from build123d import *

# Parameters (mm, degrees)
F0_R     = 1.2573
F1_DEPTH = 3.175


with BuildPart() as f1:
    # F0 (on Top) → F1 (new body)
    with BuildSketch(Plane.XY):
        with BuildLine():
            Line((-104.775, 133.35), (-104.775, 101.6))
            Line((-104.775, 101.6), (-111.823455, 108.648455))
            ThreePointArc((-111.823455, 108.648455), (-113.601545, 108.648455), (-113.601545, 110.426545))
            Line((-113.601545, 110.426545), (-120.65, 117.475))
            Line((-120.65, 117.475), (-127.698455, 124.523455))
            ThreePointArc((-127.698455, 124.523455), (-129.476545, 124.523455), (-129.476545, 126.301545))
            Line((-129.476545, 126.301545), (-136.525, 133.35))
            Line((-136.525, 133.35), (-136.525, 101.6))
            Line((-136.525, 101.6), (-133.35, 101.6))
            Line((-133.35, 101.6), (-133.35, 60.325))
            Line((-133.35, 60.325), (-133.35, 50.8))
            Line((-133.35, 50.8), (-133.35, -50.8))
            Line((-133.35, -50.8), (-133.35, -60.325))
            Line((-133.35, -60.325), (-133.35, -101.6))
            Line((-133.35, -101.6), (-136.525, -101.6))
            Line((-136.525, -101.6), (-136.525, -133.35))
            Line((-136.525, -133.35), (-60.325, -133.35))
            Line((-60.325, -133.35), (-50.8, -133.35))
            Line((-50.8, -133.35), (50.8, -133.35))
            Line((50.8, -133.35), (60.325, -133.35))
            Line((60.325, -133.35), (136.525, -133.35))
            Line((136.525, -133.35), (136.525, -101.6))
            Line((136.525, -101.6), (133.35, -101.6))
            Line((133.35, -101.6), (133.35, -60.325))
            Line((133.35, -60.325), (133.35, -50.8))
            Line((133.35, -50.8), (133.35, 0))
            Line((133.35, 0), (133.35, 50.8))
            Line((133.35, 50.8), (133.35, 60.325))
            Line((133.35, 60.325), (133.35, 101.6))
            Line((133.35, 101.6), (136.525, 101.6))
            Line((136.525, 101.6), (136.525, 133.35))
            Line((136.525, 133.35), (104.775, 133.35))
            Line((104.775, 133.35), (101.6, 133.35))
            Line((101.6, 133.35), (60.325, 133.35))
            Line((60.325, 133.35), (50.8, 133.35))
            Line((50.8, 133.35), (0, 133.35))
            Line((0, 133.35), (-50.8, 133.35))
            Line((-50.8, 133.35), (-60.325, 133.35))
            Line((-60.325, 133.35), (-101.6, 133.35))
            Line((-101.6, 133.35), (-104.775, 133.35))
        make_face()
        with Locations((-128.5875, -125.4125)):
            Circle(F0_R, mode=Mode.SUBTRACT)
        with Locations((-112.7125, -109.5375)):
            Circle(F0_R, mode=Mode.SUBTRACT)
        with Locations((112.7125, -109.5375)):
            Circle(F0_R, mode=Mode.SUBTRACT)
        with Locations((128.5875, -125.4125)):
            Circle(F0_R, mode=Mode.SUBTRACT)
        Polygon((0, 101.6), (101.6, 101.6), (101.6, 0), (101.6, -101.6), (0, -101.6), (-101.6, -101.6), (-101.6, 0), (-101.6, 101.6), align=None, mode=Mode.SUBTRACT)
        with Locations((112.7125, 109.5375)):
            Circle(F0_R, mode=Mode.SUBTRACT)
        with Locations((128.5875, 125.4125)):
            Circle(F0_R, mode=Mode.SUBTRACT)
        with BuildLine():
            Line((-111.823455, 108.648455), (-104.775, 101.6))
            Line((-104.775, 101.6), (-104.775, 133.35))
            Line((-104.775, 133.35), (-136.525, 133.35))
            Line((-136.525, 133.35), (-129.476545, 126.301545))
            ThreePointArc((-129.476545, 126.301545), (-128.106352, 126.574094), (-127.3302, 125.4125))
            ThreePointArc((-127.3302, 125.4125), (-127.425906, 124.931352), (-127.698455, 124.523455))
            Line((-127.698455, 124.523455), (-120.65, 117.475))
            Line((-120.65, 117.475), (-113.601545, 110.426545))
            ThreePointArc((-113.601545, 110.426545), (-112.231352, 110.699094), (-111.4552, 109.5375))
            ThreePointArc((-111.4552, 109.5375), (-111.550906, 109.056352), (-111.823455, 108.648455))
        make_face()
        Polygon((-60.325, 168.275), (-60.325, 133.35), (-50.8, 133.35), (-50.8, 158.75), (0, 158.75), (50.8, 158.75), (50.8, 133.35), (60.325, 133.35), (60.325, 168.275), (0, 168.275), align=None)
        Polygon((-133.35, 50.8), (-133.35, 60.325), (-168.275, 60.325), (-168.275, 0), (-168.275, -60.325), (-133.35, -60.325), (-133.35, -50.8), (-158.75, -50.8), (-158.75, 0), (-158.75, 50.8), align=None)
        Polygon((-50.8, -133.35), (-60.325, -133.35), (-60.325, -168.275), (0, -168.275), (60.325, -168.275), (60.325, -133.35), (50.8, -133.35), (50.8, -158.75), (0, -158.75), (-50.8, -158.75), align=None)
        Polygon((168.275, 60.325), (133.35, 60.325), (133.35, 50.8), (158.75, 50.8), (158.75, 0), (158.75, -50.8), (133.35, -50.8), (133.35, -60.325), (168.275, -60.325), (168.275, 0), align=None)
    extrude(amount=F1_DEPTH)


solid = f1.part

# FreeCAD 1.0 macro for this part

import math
import FreeCAD as App
import Part
import Sketcher

V = App.Vector
Q = App.Units.Quantity

doc = App.newDocument("Part")
params = doc.addObject("Spreadsheet::Sheet", "Params")
for row, (alias, value) in enumerate([
    ("sketch1_width", "3 in"),
    ("sketch1_width2", "1 in"),
    ("sketch1_width3", "4 in"),
    ("sketch1_width4", "8 in"),
    ("sketch1_diameter", "0.099 in"),
    ("pad1_length", "0.125 in"),
], start=1):
    params.set(f"A{row}", alias)
    params.set(f"B{row}", "=" + value)
    params.setAlias(f"B{row}", alias)

body = doc.addObject("PartDesign::Body", "Body")

sketch1 = body.newObject("Sketcher::SketchObject", "Sketch")
sketch1.AttachmentSupport = (doc.getObject("XY_Plane"), [""])
sketch1.MapMode = "FlatFace"
sketch1.addGeometry(Part.LineSegment(V(136.525, 133.35, 0), V(60.325, 133.35, 0)), False)
sketch1.addGeometry(Part.LineSegment(V(60.325, 133.35, 0), V(60.325, 168.275, 0)), False)
sketch1.addGeometry(Part.LineSegment(V(60.325, 168.275, 0), V(-60.325, 168.275, 0)), False)
sketch1.addGeometry(Part.LineSegment(V(-60.325, 168.275, 0), V(-60.325, 133.35, 0)), False)
sketch1.addGeometry(Part.LineSegment(V(-60.325, 133.35, 0), V(-136.525, 133.35, 0)), False)
sketch1.addGeometry(Part.LineSegment(V(-136.525, 133.35, 0), V(-136.525, 101.6, 0)), False)
sketch1.addGeometry(Part.LineSegment(V(-136.525, 101.6, 0), V(-133.35, 101.6, 0)), False)
sketch1.addGeometry(Part.LineSegment(V(-133.35, 101.6, 0), V(-133.35, 60.325, 0)), False)
sketch1.addGeometry(Part.LineSegment(V(-133.35, 60.325, 0), V(-168.275, 60.325, 0)), False)
sketch1.addGeometry(Part.LineSegment(V(-168.275, 60.325, 0), V(-168.275, -60.325, 0)), False)
sketch1.addGeometry(Part.LineSegment(V(-168.275, -60.325, 0), V(-133.35, -60.325, 0)), False)
sketch1.addGeometry(Part.LineSegment(V(-133.35, -60.325, 0), V(-133.35, -101.6, 0)), False)
sketch1.addGeometry(Part.LineSegment(V(-133.35, -101.6, 0), V(-136.525, -101.6, 0)), False)
sketch1.addGeometry(Part.LineSegment(V(-136.525, -101.6, 0), V(-136.525, -133.35, 0)), False)
sketch1.addGeometry(Part.LineSegment(V(-136.525, -133.35, 0), V(-60.325, -133.35, 0)), False)
sketch1.addGeometry(Part.LineSegment(V(-60.325, -133.35, 0), V(-60.325, -168.275, 0)), False)
sketch1.addGeometry(Part.LineSegment(V(-60.325, -168.275, 0), V(60.325, -168.275, 0)), False)
sketch1.addGeometry(Part.LineSegment(V(60.325, -168.275, 0), V(60.325, -133.35, 0)), False)
sketch1.addGeometry(Part.LineSegment(V(60.325, -133.35, 0), V(136.525, -133.35, 0)), False)
sketch1.addGeometry(Part.LineSegment(V(136.525, -133.35, 0), V(136.525, -101.6, 0)), False)
sketch1.addGeometry(Part.LineSegment(V(136.525, -101.6, 0), V(133.35, -101.6, 0)), False)
sketch1.addGeometry(Part.LineSegment(V(133.35, -101.6, 0), V(133.35, -60.325, 0)), False)
sketch1.addGeometry(Part.LineSegment(V(133.35, -60.325, 0), V(168.275, -60.325, 0)), False)
sketch1.addGeometry(Part.LineSegment(V(168.275, -60.325, 0), V(168.275, 60.325, 0)), False)
sketch1.addGeometry(Part.LineSegment(V(168.275, 60.325, 0), V(133.35, 60.325, 0)), False)
sketch1.addGeometry(Part.LineSegment(V(133.35, 60.325, 0), V(133.35, 101.6, 0)), False)
sketch1.addGeometry(Part.LineSegment(V(133.35, 101.6, 0), V(136.525, 101.6, 0)), False)
sketch1.addGeometry(Part.LineSegment(V(136.525, 101.6, 0), V(136.525, 133.35, 0)), False)
sketch1.addGeometry(Part.LineSegment(V(133.35, -50.8, 0), V(133.35, 50.8, 0)), False)
sketch1.addGeometry(Part.LineSegment(V(133.35, 50.8, 0), V(158.75, 50.8, 0)), False)
sketch1.addGeometry(Part.LineSegment(V(158.75, 50.8, 0), V(158.75, -50.8, 0)), False)
sketch1.addGeometry(Part.LineSegment(V(158.75, -50.8, 0), V(133.35, -50.8, 0)), False)
sketch1.addGeometry(Part.LineSegment(V(-50.8, -133.35, 0), V(50.8, -133.35, 0)), False)
sketch1.addGeometry(Part.LineSegment(V(50.8, -133.35, 0), V(50.8, -158.75, 0)), False)
sketch1.addGeometry(Part.LineSegment(V(50.8, -158.75, 0), V(-50.8, -158.75, 0)), False)
sketch1.addGeometry(Part.LineSegment(V(-50.8, -158.75, 0), V(-50.8, -133.35, 0)), False)
sketch1.addGeometry(Part.LineSegment(V(-133.35, 50.8, 0), V(-133.35, -50.8, 0)), False)
sketch1.addGeometry(Part.LineSegment(V(-133.35, -50.8, 0), V(-158.75, -50.8, 0)), False)
sketch1.addGeometry(Part.LineSegment(V(-158.75, -50.8, 0), V(-158.75, 50.8, 0)), False)
sketch1.addGeometry(Part.LineSegment(V(-158.75, 50.8, 0), V(-133.35, 50.8, 0)), False)
sketch1.addGeometry(Part.LineSegment(V(50.8, 133.35, 0), V(-50.8, 133.35, 0)), False)
sketch1.addGeometry(Part.LineSegment(V(-50.8, 133.35, 0), V(-50.8, 158.75, 0)), False)
sketch1.addGeometry(Part.LineSegment(V(-50.8, 158.75, 0), V(50.8, 158.75, 0)), False)
sketch1.addGeometry(Part.LineSegment(V(50.8, 158.75, 0), V(50.8, 133.35, 0)), False)
sketch1.addGeometry(Part.ArcOfCircle(Part.Circle(V(-112.7125, 109.5375, 0), V(0, 0, 1), 1.257299), math.radians(135), math.radians(315)), False)
sketch1.addGeometry(Part.ArcOfCircle(Part.Circle(V(-112.712499, 109.537501, 0), V(0, 0, 1), 1.257299), math.radians(-0.000032), math.radians(135.000042)), False)
sketch1.addGeometry(Part.ArcOfCircle(Part.Circle(V(-112.712493, 109.537498, 0), V(0, 0, 1), 1.257293), math.radians(-45.000152), math.radians(0.000096)), False)
sketch1.addGeometry(Part.ArcOfCircle(Part.Circle(V(-128.5875, 125.4125, 0), V(0, 0, 1), 1.257299), math.radians(135), math.radians(315)), False)
sketch1.addGeometry(Part.ArcOfCircle(Part.Circle(V(-128.587499, 125.412501, 0), V(0, 0, 1), 1.257299), math.radians(-0.000032), math.radians(135.000042)), False)
sketch1.addGeometry(Part.ArcOfCircle(Part.Circle(V(-128.587493, 125.412498, 0), V(0, 0, 1), 1.257293), math.radians(-45.000152), math.radians(0.000096)), False)
sketch1.addGeometry(Part.Circle(V(-128.5875, -125.4125, 0), V(0, 0, 1), 1.2573), False)
sketch1.addGeometry(Part.Circle(V(-112.7125, -109.5375, 0), V(0, 0, 1), 1.2573), False)
sketch1.addGeometry(Part.Circle(V(128.5875, -125.4125, 0), V(0, 0, 1), 1.2573), False)
sketch1.addGeometry(Part.Circle(V(112.7125, -109.5375, 0), V(0, 0, 1), 1.2573), False)
sketch1.addGeometry(Part.LineSegment(V(-101.6, 101.6, 0), V(101.6, 101.6, 0)), False)
sketch1.addGeometry(Part.LineSegment(V(101.6, 101.6, 0), V(101.6, -101.6, 0)), False)
sketch1.addGeometry(Part.LineSegment(V(101.6, -101.6, 0), V(-101.6, -101.6, 0)), False)
sketch1.addGeometry(Part.LineSegment(V(-101.6, -101.6, 0), V(-101.6, 101.6, 0)), False)
sketch1.addGeometry(Part.Circle(V(112.7125, 109.5375, 0), V(0, 0, 1), 1.2573), False)
sketch1.addGeometry(Part.Circle(V(128.5875, 125.4125, 0), V(0, 0, 1), 1.2573), False)
sketch1.addConstraint(Sketcher.Constraint("Coincident", 0, 2, 1, 1))
sketch1.addConstraint(Sketcher.Constraint("Coincident", 1, 2, 2, 1))
sketch1.addConstraint(Sketcher.Constraint("Coincident", 2, 2, 3, 1))
sketch1.addConstraint(Sketcher.Constraint("Coincident", 3, 2, 4, 1))
sketch1.addConstraint(Sketcher.Constraint("Coincident", 4, 2, 5, 1))
sketch1.addConstraint(Sketcher.Constraint("Coincident", 5, 2, 6, 1))
sketch1.addConstraint(Sketcher.Constraint("Coincident", 6, 2, 7, 1))
sketch1.addConstraint(Sketcher.Constraint("Coincident", 7, 2, 8, 1))
sketch1.addConstraint(Sketcher.Constraint("Coincident", 8, 2, 9, 1))
sketch1.addConstraint(Sketcher.Constraint("Coincident", 9, 2, 10, 1))
sketch1.addConstraint(Sketcher.Constraint("Coincident", 10, 2, 11, 1))
sketch1.addConstraint(Sketcher.Constraint("Coincident", 11, 2, 12, 1))
sketch1.addConstraint(Sketcher.Constraint("Coincident", 12, 2, 13, 1))
sketch1.addConstraint(Sketcher.Constraint("Coincident", 13, 2, 14, 1))
sketch1.addConstraint(Sketcher.Constraint("Coincident", 14, 2, 15, 1))
sketch1.addConstraint(Sketcher.Constraint("Coincident", 15, 2, 16, 1))
sketch1.addConstraint(Sketcher.Constraint("Coincident", 16, 2, 17, 1))
sketch1.addConstraint(Sketcher.Constraint("Coincident", 17, 2, 18, 1))
sketch1.addConstraint(Sketcher.Constraint("Coincident", 18, 2, 19, 1))
sketch1.addConstraint(Sketcher.Constraint("Coincident", 19, 2, 20, 1))
sketch1.addConstraint(Sketcher.Constraint("Coincident", 20, 2, 21, 1))
sketch1.addConstraint(Sketcher.Constraint("Coincident", 21, 2, 22, 1))
sketch1.addConstraint(Sketcher.Constraint("Coincident", 22, 2, 23, 1))
sketch1.addConstraint(Sketcher.Constraint("Coincident", 23, 2, 24, 1))
sketch1.addConstraint(Sketcher.Constraint("Coincident", 24, 2, 25, 1))
sketch1.addConstraint(Sketcher.Constraint("Coincident", 25, 2, 26, 1))
sketch1.addConstraint(Sketcher.Constraint("Coincident", 26, 2, 27, 1))
sketch1.addConstraint(Sketcher.Constraint("Coincident", 27, 2, 0, 1))
sketch1.addConstraint(Sketcher.Constraint("Coincident", 28, 2, 29, 1))
sketch1.addConstraint(Sketcher.Constraint("Coincident", 29, 2, 30, 1))
sketch1.addConstraint(Sketcher.Constraint("Coincident", 30, 2, 31, 1))
sketch1.addConstraint(Sketcher.Constraint("Coincident", 31, 2, 28, 1))
sketch1.addConstraint(Sketcher.Constraint("Coincident", 32, 2, 33, 1))
sketch1.addConstraint(Sketcher.Constraint("Coincident", 33, 2, 34, 1))
sketch1.addConstraint(Sketcher.Constraint("Coincident", 34, 2, 35, 1))
sketch1.addConstraint(Sketcher.Constraint("Coincident", 35, 2, 32, 1))
sketch1.addConstraint(Sketcher.Constraint("Coincident", 36, 2, 37, 1))
sketch1.addConstraint(Sketcher.Constraint("Coincident", 37, 2, 38, 1))
sketch1.addConstraint(Sketcher.Constraint("Coincident", 38, 2, 39, 1))
sketch1.addConstraint(Sketcher.Constraint("Coincident", 39, 2, 36, 1))
sketch1.addConstraint(Sketcher.Constraint("Coincident", 40, 2, 41, 1))
sketch1.addConstraint(Sketcher.Constraint("Coincident", 41, 2, 42, 1))
sketch1.addConstraint(Sketcher.Constraint("Coincident", 42, 2, 43, 1))
sketch1.addConstraint(Sketcher.Constraint("Coincident", 43, 2, 40, 1))
sketch1.addConstraint(Sketcher.Constraint("Tangent", 44, 1, 45, 2))
sketch1.addConstraint(Sketcher.Constraint("Coincident", 45, 1, 46, 2))
sketch1.addConstraint(Sketcher.Constraint("Coincident", 46, 1, 44, 2))
sketch1.addConstraint(Sketcher.Constraint("Tangent", 47, 1, 48, 2))
sketch1.addConstraint(Sketcher.Constraint("Coincident", 48, 1, 49, 2))
sketch1.addConstraint(Sketcher.Constraint("Coincident", 49, 1, 47, 2))
sketch1.addConstraint(Sketcher.Constraint("Coincident", 54, 2, 55, 1))
sketch1.addConstraint(Sketcher.Constraint("Coincident", 55, 2, 56, 1))
sketch1.addConstraint(Sketcher.Constraint("Coincident", 56, 2, 57, 1))
sketch1.addConstraint(Sketcher.Constraint("Coincident", 57, 2, 54, 1))
sketch1.addConstraint(Sketcher.Constraint("Horizontal", 0))
sketch1.addConstraint(Sketcher.Constraint("Vertical", 1))
sketch1.addConstraint(Sketcher.Constraint("Horizontal", 2))
sketch1.addConstraint(Sketcher.Constraint("Vertical", 3))
sketch1.addConstraint(Sketcher.Constraint("Horizontal", 4))
sketch1.addConstraint(Sketcher.Constraint("Vertical", 5))
sketch1.addConstraint(Sketcher.Constraint("Horizontal", 6))
sketch1.addConstraint(Sketcher.Constraint("Vertical", 7))
sketch1.addConstraint(Sketcher.Constraint("Horizontal", 8))
sketch1.addConstraint(Sketcher.Constraint("Vertical", 9))
sketch1.addConstraint(Sketcher.Constraint("Horizontal", 10))
sketch1.addConstraint(Sketcher.Constraint("Vertical", 11))
sketch1.addConstraint(Sketcher.Constraint("Horizontal", 12))
sketch1.addConstraint(Sketcher.Constraint("Vertical", 13))
sketch1.addConstraint(Sketcher.Constraint("Horizontal", 14))
sketch1.addConstraint(Sketcher.Constraint("Vertical", 15))
sketch1.addConstraint(Sketcher.Constraint("Horizontal", 16))
sketch1.addConstraint(Sketcher.Constraint("Vertical", 17))
sketch1.addConstraint(Sketcher.Constraint("Horizontal", 18))
sketch1.addConstraint(Sketcher.Constraint("Vertical", 19))
sketch1.addConstraint(Sketcher.Constraint("Horizontal", 20))
sketch1.addConstraint(Sketcher.Constraint("Vertical", 21))
sketch1.addConstraint(Sketcher.Constraint("Horizontal", 22))
sketch1.addConstraint(Sketcher.Constraint("Vertical", 23))
sketch1.addConstraint(Sketcher.Constraint("Horizontal", 24))
sketch1.addConstraint(Sketcher.Constraint("Vertical", 25))
sketch1.addConstraint(Sketcher.Constraint("Horizontal", 26))
sketch1.addConstraint(Sketcher.Constraint("Vertical", 27))
sketch1.addConstraint(Sketcher.Constraint("Vertical", 28))
sketch1.addConstraint(Sketcher.Constraint("Horizontal", 29))
sketch1.addConstraint(Sketcher.Constraint("Vertical", 30))
sketch1.addConstraint(Sketcher.Constraint("Horizontal", 31))
sketch1.addConstraint(Sketcher.Constraint("Horizontal", 32))
sketch1.addConstraint(Sketcher.Constraint("Vertical", 33))
sketch1.addConstraint(Sketcher.Constraint("Horizontal", 34))
sketch1.addConstraint(Sketcher.Constraint("Vertical", 35))
sketch1.addConstraint(Sketcher.Constraint("Vertical", 36))
sketch1.addConstraint(Sketcher.Constraint("Horizontal", 37))
sketch1.addConstraint(Sketcher.Constraint("Vertical", 38))
sketch1.addConstraint(Sketcher.Constraint("Horizontal", 39))
sketch1.addConstraint(Sketcher.Constraint("Horizontal", 40))
sketch1.addConstraint(Sketcher.Constraint("Vertical", 41))
sketch1.addConstraint(Sketcher.Constraint("Horizontal", 42))
sketch1.addConstraint(Sketcher.Constraint("Vertical", 43))
sketch1.addConstraint(Sketcher.Constraint("Horizontal", 54))
sketch1.addConstraint(Sketcher.Constraint("Vertical", 55))
sketch1.addConstraint(Sketcher.Constraint("Horizontal", 56))
sketch1.addConstraint(Sketcher.Constraint("Vertical", 57))
sketch1.addConstraint(Sketcher.Constraint("Coincident", 46, 3, 44, 3))
sketch1.addConstraint(Sketcher.Constraint("Coincident", 49, 3, 47, 3))
sketch1.addConstraint(Sketcher.Constraint("Equal", 45, 47))
sketch1.addConstraint(Sketcher.Constraint("Equal", 48, 50))
sketch1.addConstraint(Sketcher.Constraint("Equal", 50, 51))
sketch1.addConstraint(Sketcher.Constraint("Equal", 51, 52))
sketch1.addConstraint(Sketcher.Constraint("Equal", 52, 53))
sketch1.addConstraint(Sketcher.Constraint("Equal", 53, 58))
sketch1.addConstraint(Sketcher.Constraint("Equal", 58, 59))
sketch1.addConstraint(Sketcher.Constraint("Symmetric", 47, 3, 52, 3, -1, 1))
sketch1.addConstraint(Sketcher.Constraint("Symmetric", 44, 3, 53, 3, -1, 1))
sketch1.addConstraint(Sketcher.Constraint("Symmetric", 51, 3, 58, 3, -1, 1))
sketch1.addConstraint(Sketcher.Constraint("Symmetric", 50, 3, 59, 3, -1, 1))
sketch1.addConstraint(Sketcher.Constraint("Symmetric", 0, 2, 14, 2, -1, 1))
sketch1.addConstraint(Sketcher.Constraint("Symmetric", 2, 2, 16, 2, -1, 1))
sketch1.addConstraint(Sketcher.Constraint("Symmetric", 4, 2, 18, 2, -1, 1))
sketch1.addConstraint(Sketcher.Constraint("Symmetric", 6, 2, 20, 2, -1, 1))
sketch1.addConstraint(Sketcher.Constraint("Symmetric", 8, 2, 22, 2, -1, 1))
sketch1.addConstraint(Sketcher.Constraint("Symmetric", 10, 2, 24, 2, -1, 1))
sketch1.addConstraint(Sketcher.Constraint("Symmetric", 12, 2, 26, 2, -1, 1))
sketch1.addConstraint(Sketcher.Constraint("Symmetric", 28, 2, 36, 2, -1, 1))
sketch1.addConstraint(Sketcher.Constraint("Symmetric", 30, 2, 38, 2, -1, 1))
sketch1.addConstraint(Sketcher.Constraint("Symmetric", 32, 2, 40, 2, -1, 1))
sketch1.addConstraint(Sketcher.Constraint("Symmetric", 34, 2, 42, 2, -1, 1))
sketch1.addConstraint(Sketcher.Constraint("Symmetric", 54, 2, 56, 2, -1, 1))
sketch1.addConstraint(Sketcher.Constraint("Symmetric", 50, 3, 52, 3, -2))
sketch1.addConstraint(Sketcher.Constraint("Symmetric", 51, 3, 53, 3, -2))
sketch1.addConstraint(Sketcher.Constraint("Symmetric", 0, 2, 3, 2, -2))
sketch1.addConstraint(Sketcher.Constraint("Symmetric", 12, 2, 19, 2, -2))
sketch1.addConstraint(Sketcher.Constraint("Symmetric", 10, 2, 21, 2, -2))
sketch1.addConstraint(Sketcher.Constraint("Horizontal", 18, 2, 32, 2))
sketch1.addConstraint(Sketcher.Constraint("Horizontal", 31, 2, 36, 2))
sketch1.addConstraint(Sketcher.Constraint("Horizontal", 58, 3, 45, 1))
sketch1.addConstraint(Sketcher.Constraint("Horizontal", 59, 3, 48, 1))
sketch1.addConstraint(Sketcher.Constraint("Horizontal", 26, 2, 54, 2))
sketch1.addConstraint(Sketcher.Constraint("Vertical", 25, 2, 28, 2))
sketch1.addConstraint(Sketcher.Constraint("Vertical", 35, 2, 40, 2))
sketch1.addConstraint(Sketcher.Constraint("Equal", 24, 1))
sketch1.addConstraint(Sketcher.Constraint("Equal", 16, 9))
sketch1.addConstraint(Sketcher.Constraint("Equal", 42, 28))
sketch1.addConstraint(Sketcher.Constraint("Equal", 39, 33))
sketch1.addConstraint(Sketcher.Constraint("Equal", 56, 55))
sketch1.addConstraint(Sketcher.Constraint("DistanceX", 0, 2, 0, 1, Q("3 in")))
sketch1.addConstraint(Sketcher.Constraint("DistanceX", 29, 1, 29, 2, Q("1 in")))
sketch1.addConstraint(Sketcher.Constraint("DistanceX", 32, 1, 32, 2, Q("4 in")))
sketch1.addConstraint(Sketcher.Constraint("DistanceX", 54, 1, 54, 2, Q("8 in")))
sketch1.addConstraint(Sketcher.Constraint("Diameter", 50, Q("0.099 in")))
sketch1.addConstraint(Sketcher.Constraint("DistanceX", 2, 2, 2, 1, Q("4.75 in")))
sketch1.addConstraint(Sketcher.Constraint("DistanceY", 5, 2, 5, 1, Q("1.25 in")))
sketch1.addConstraint(Sketcher.Constraint("DistanceX", 6, 1, 6, 2, Q("0.125 in")))
sketch1.addConstraint(Sketcher.Constraint("DistanceX", 8, 2, 8, 1, Q("1.375 in")))
sketch1.addConstraint(Sketcher.Constraint("DistanceX", 44, 3, -1, 1, Q("4.4375 in")))
sketch1.addConstraint(Sketcher.Constraint("DistanceY", -1, 1, 44, 3, Q("4.3125 in")))
sketch1.addConstraint(Sketcher.Constraint("DistanceX", 47, 3, -1, 1, Q("5.0625 in")))
sketch1.addConstraint(Sketcher.Constraint("DistanceY", -1, 1, 47, 3, Q("4.9375 in")))
sketch1.addConstraint(Sketcher.Constraint("DistanceX", 44, 1, -1, 1, 113.601545))
sketch1.addConstraint(Sketcher.Constraint("DistanceX", 46, 1, -1, 1, 111.823455))
sketch1.addConstraint(Sketcher.Constraint("DistanceX", 47, 1, -1, 1, 129.476545))
sketch1.addConstraint(Sketcher.Constraint("DistanceX", 49, 1, -1, 1, 127.698455))
sketch1.setExpression("Constraints[144]", "Params.sketch1_width")
sketch1.setExpression("Constraints[145]", "Params.sketch1_width2")
sketch1.setExpression("Constraints[146]", "Params.sketch1_width3")
sketch1.setExpression("Constraints[147]", "Params.sketch1_width4")
sketch1.setExpression("Constraints[148]", "Params.sketch1_diameter")
pad1 = body.newObject("PartDesign::Pad", "Pad")
pad1.Profile = sketch1
pad1.setExpression("Length", "Params.pad1_length")

doc.recompute()
